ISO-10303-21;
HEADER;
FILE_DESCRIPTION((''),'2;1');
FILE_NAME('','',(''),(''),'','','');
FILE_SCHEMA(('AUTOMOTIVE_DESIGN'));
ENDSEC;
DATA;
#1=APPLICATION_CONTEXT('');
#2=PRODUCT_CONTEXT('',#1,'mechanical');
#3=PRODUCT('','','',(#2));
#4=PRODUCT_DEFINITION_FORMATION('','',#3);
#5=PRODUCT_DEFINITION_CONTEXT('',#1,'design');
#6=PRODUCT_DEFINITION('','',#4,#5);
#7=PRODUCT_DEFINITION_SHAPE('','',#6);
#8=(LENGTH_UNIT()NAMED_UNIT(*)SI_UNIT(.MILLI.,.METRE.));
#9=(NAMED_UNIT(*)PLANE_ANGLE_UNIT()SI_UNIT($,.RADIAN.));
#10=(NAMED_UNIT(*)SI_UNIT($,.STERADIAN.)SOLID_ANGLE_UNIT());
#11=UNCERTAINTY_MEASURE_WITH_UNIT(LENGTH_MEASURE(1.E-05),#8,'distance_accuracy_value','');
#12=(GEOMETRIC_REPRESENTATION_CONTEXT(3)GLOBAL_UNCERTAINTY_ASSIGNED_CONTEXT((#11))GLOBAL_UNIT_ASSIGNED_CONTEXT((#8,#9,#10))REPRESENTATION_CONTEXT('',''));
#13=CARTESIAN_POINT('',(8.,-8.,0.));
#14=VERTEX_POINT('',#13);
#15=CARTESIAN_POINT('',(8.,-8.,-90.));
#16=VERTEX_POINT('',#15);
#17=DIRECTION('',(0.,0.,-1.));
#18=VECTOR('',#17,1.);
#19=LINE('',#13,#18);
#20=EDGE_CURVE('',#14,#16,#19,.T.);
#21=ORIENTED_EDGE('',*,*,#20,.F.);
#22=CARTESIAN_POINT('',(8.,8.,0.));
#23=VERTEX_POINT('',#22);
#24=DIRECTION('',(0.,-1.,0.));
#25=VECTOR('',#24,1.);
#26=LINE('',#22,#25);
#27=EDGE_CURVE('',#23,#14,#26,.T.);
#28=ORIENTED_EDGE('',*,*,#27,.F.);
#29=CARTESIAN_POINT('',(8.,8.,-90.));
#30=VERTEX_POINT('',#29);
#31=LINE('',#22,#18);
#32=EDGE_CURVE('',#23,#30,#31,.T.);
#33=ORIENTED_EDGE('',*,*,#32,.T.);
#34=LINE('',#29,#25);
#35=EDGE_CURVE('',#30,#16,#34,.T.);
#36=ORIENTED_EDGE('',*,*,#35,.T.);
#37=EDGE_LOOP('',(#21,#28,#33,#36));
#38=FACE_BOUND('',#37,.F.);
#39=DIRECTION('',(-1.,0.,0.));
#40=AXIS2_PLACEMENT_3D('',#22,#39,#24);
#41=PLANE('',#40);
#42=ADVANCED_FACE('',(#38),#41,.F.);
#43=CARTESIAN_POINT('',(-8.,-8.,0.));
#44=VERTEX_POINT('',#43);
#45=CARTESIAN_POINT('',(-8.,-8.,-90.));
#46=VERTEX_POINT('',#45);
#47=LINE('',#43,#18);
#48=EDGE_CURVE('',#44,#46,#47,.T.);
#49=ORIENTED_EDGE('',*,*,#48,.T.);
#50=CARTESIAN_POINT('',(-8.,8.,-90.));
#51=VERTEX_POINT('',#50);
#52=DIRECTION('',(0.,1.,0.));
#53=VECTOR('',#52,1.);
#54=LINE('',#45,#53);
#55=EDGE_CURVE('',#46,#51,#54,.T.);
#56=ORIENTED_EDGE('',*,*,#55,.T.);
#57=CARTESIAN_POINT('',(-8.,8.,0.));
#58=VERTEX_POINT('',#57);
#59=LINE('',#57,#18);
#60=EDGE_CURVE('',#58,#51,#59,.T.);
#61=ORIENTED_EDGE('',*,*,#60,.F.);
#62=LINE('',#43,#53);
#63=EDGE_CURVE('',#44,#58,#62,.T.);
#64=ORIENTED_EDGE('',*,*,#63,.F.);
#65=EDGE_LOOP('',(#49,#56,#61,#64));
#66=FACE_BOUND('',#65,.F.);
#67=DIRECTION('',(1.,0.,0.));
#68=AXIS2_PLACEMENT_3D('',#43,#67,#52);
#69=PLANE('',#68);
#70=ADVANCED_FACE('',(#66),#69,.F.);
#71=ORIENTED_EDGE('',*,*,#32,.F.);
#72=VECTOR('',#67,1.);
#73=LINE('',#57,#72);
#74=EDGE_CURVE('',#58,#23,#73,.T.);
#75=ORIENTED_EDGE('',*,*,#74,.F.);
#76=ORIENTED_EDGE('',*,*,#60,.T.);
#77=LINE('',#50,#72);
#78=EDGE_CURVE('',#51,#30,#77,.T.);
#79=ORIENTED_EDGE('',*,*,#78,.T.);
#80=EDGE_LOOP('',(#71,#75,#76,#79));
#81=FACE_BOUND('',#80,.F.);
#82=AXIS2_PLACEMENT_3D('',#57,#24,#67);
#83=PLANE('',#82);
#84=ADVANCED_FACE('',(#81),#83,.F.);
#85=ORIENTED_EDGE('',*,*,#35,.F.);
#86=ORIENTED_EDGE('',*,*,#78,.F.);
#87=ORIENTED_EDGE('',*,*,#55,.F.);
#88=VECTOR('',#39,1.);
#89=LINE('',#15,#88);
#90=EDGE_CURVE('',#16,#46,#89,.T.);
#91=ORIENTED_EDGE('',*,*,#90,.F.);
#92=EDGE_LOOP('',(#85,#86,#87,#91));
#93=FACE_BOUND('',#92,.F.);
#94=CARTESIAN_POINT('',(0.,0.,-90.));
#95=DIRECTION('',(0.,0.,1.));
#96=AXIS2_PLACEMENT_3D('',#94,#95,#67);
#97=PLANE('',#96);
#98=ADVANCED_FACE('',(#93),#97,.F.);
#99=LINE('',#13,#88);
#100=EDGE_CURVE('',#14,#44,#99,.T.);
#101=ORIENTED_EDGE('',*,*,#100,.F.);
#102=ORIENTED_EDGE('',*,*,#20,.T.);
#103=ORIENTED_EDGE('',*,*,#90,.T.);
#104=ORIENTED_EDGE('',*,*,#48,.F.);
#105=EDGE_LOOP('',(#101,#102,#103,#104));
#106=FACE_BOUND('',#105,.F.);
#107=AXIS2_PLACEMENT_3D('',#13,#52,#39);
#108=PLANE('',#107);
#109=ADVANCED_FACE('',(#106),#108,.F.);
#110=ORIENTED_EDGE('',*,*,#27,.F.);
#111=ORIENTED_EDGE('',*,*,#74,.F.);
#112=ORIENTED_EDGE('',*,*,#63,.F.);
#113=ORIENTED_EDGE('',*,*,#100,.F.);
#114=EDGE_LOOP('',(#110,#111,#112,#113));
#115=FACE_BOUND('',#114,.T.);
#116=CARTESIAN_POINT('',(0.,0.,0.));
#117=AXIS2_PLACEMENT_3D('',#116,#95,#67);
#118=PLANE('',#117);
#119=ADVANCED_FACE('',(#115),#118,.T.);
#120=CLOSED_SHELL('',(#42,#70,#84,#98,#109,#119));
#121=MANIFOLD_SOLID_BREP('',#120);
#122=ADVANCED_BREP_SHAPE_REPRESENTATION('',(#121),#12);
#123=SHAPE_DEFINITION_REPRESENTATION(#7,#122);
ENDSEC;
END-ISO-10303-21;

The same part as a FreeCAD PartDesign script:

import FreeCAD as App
import Part
import Sketcher
Q = App.Units.Quantity

doc = App.newDocument("Part")
body = doc.addObject("PartDesign::Body", "Body")

# Sketch on XY plane
sketch1 = body.newObject("Sketcher::SketchObject", "Sketch")
sketch1.AttachmentSupport = (doc.getObject("XY_Plane"), [""])
sketch1.MapMode = "FlatFace"
sketch1.addGeometry(Part.LineSegment(App.Vector(8, 8, 0), App.Vector(-8, 8, 0)), False)
sketch1.addGeometry(Part.LineSegment(App.Vector(-8, 8, 0), App.Vector(-8, -8, 0)), False)
sketch1.addGeometry(Part.LineSegment(App.Vector(-8, -8, 0), App.Vector(8, -8, 0)), False)
sketch1.addGeometry(Part.LineSegment(App.Vector(8, -8, 0), App.Vector(8, 8, 0)), False)
sketch1.addConstraint(Sketcher.Constraint("Coincident", 0, 2, 1, 1))
sketch1.addConstraint(Sketcher.Constraint("Coincident", 1, 2, 2, 1))
sketch1.addConstraint(Sketcher.Constraint("Coincident", 2, 2, 3, 1))
sketch1.addConstraint(Sketcher.Constraint("Coincident", 3, 2, 0, 1))
sketch1.addConstraint(Sketcher.Constraint("Horizontal", 0))
sketch1.addConstraint(Sketcher.Constraint("Vertical", 1))
sketch1.addConstraint(Sketcher.Constraint("Horizontal", 2))
sketch1.addConstraint(Sketcher.Constraint("Vertical", 3))
sketch1.addConstraint(Sketcher.Constraint("Symmetric", 0, 2, 2, 2, -1, 1))
sketch1.addConstraint(Sketcher.Constraint("Equal", 2, 1))
sketch1.addConstraint(Sketcher.Constraint("DistanceX", 0, 2, 0, 1, Q("16 mm")))
pad1 = body.newObject("PartDesign::Pad", "Pad")
pad1.Profile = sketch1
pad1.Length = 90
pad1.Reversed = True

doc.recompute()
